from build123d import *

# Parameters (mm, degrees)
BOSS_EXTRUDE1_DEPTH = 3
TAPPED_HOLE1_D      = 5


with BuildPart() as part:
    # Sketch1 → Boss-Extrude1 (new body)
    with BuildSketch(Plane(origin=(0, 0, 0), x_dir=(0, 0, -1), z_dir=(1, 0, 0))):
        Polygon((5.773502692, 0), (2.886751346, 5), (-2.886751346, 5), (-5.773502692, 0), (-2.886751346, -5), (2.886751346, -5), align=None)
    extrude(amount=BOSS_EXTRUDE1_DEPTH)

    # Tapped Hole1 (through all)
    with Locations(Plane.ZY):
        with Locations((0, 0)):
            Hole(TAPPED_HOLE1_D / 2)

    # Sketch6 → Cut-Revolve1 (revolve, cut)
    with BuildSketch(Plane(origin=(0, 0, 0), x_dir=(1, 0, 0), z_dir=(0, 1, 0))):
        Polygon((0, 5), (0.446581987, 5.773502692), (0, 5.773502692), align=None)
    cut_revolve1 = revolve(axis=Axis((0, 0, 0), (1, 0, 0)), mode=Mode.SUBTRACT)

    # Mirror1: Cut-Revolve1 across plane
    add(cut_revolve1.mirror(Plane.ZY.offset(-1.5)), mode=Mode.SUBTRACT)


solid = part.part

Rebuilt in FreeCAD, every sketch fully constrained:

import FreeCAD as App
import Part
import Sketcher

V = App.Vector
Q = App.Units.Quantity


def add_polygon(sketch, points):
    """Adds a closed chain of lines whose ends are joined by coincident constraints."""
    first, n = sketch.GeometryCount, len(points)
    for a, b in zip(points, points[1:] + points[:1]):
        sketch.addGeometry(Part.LineSegment(App.Vector(*a, 0), App.Vector(*b, 0)), False)
    for i in range(n):
        sketch.addConstraint(Sketcher.Constraint("Coincident", first + i, 2, first + (i + 1) % n, 1))

doc = App.newDocument("Part")
body = doc.addObject("PartDesign::Body", "Body")

# Sketch on YZ plane
sketch1 = body.newObject("Sketcher::SketchObject", "Sketch")
sketch1.AttachmentSupport = (doc.getObject("YZ_Plane"), [""])
sketch1.MapMode = "FlatFace"
add_polygon(sketch1, [(0, -5.773503), (5, -2.886751), (5, 2.886751), (0, 5.773503), (-5, 2.886751), (-5, -2.886751)])  # lines 0-5
sketch1.addConstraint([
    Sketcher.Constraint("Vertical", 1),
    Sketcher.Constraint("Vertical", 4),
    Sketcher.Constraint("Symmetric", 0, 2, 3, 2, -1, 1),
    Sketcher.Constraint("Symmetric", 2, 2, 5, 2, -1, 1),
    Sketcher.Constraint("PointOnObject", 2, 2, -2),
    Sketcher.Constraint("Parallel", 2, 5),
    Sketcher.Constraint("Horizontal", 1, 2, 3, 2),
    Sketcher.Constraint("Angle", 0, Q("30 deg")),
    Sketcher.Constraint("DistanceX", -1, 1, 0, 2, 5.0),
    Sketcher.Constraint("DistanceY", 1, 1, 1, 2, 5.773503),
])
pad1 = body.newObject("PartDesign::Pad", "Pad")
pad1.Profile = sketch1
pad1.Length = 3

# Sketch on YZ plane
sketch2 = body.newObject("Sketcher::SketchObject", "Sketch001")
sketch2.AttachmentSupport = (doc.getObject("YZ_Plane"), [""])
sketch2.MapMode = "FlatFace"
sketch2.addGeometry(Part.Circle(V(0, 0, 0), V(0, 0, 1), 2.5), False)
sketch2.addConstraint([
    Sketcher.Constraint("Coincident", 0, 3, -1, 1),
    Sketcher.Constraint("Diameter", 0, 5.0),
])
doc.recompute()
hole = body.newObject("PartDesign::Hole", "Hole")
hole.Profile = sketch2
hole.ThreadType = "None"
hole.Diameter = 5
hole.DepthType = "ThroughAll"
hole.Reversed = True

# Sketch on XZ plane
sketch3 = body.newObject("Sketcher::SketchObject", "Sketch002")
sketch3.AttachmentSupport = (doc.getObject("XZ_Plane"), [""])
sketch3.MapMode = "FlatFace"
add_polygon(sketch3, [(0, -5), (0.446582, -5.773503), (0, -5.773503)])  # lines 0-2
sketch3.addConstraint([
    Sketcher.Constraint("Horizontal", 1),
    Sketcher.Constraint("Vertical", 2),
    Sketcher.Constraint("PointOnObject", 1, 2, -2),
    Sketcher.Constraint("Angle", 0, Q("-60 deg")),
    Sketcher.Constraint("DistanceY", 2, 2, -1, 1, 5.0),
    Sketcher.Constraint("DistanceX", 1, 2, 1, 1, 0.446582),
])
groove = body.newObject("PartDesign::Groove", "Groove")
groove.Profile = sketch3
groove.ReferenceAxis = (sketch3, ["H_Axis"])
groove.Angle = 360
doc.recompute()

datumplane = body.newObject("PartDesign::Plane", "DatumPlane")
datumplane.AttachmentSupport = (doc.getObject("YZ_Plane"), [""])
datumplane.MapMode = "FlatFace"
datumplane.AttachmentOffset = App.Placement(V(0, 0, 1.5), App.Rotation())
mirrored = body.newObject("PartDesign::Mirrored", "Mirrored")
mirrored.Originals = [groove]
mirrored.MirrorPlane = (datumplane, [""])
body.Tip = mirrored

doc.recompute()
